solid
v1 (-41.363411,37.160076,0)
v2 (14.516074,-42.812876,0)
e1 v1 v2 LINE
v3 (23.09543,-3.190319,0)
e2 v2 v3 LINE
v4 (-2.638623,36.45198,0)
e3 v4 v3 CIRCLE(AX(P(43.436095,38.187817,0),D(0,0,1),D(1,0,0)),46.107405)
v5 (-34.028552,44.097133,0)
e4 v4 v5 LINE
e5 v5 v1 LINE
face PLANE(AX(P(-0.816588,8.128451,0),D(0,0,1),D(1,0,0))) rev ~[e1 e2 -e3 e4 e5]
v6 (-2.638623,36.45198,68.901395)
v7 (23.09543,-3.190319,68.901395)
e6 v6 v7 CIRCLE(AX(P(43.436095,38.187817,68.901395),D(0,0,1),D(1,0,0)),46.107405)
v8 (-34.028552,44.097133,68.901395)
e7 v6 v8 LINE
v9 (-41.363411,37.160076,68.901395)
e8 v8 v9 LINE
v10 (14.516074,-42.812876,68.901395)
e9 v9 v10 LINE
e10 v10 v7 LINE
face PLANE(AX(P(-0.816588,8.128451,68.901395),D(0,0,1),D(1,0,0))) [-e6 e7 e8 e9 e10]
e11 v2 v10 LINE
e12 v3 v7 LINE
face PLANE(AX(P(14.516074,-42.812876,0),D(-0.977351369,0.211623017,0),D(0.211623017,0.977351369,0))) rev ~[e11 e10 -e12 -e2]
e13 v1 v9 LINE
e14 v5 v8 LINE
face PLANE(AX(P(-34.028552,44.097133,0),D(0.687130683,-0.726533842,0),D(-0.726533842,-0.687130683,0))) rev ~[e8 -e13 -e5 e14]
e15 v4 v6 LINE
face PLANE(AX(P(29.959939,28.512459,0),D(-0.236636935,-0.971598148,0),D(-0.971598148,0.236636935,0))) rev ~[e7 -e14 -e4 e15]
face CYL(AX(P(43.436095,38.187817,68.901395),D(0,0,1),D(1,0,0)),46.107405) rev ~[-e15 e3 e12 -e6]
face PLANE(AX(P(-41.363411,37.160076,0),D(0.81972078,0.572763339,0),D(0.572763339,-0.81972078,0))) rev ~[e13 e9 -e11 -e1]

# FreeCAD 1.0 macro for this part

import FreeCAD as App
import Part
import Sketcher
from FreeCAD import Vector
Q = App.Units.Quantity


def add_polygon(sketch, points):
    """Adds a closed chain of lines whose ends are joined by coincident constraints."""
    first, n = sketch.GeometryCount, len(points)
    for a, b in zip(points, points[1:] + points[:1]):
        sketch.addGeometry(Part.LineSegment(App.Vector(*a, 0), App.Vector(*b, 0)), False)
    for i in range(n):
        sketch.addConstraint(Sketcher.Constraint("Coincident", first + i, 2, first + (i + 1) % n, 1))

doc = App.newDocument("Part")
body = doc.addObject("PartDesign::Body", "Body")

sketch1 = body.newObject("Sketcher::SketchObject", "Sketch")
sketch1.AttachmentSupport = (doc.getObject("XY_Plane"), [""])
sketch1.MapMode = "FlatFace"
add_polygon(sketch1, [(-34, 44), (-41, 37), (15, -43), (30, 29)])
sketch1.addConstraint([
    Sketcher.Constraint("Distance", 0, Q("10.095688 mm")),
    Sketcher.Constraint("Distance", 1, Q("97.561211 mm")),
    Sketcher.Constraint("Distance", 2, Q("72.978191 mm")),
    Sketcher.Constraint("Distance", 3, Q("65.859009 mm")),
    Sketcher.Constraint("DistanceX", 0, 2, -1, 1, Q("41.363411 mm")),
    Sketcher.Constraint("DistanceX", -1, 1, 2, 2, Q("29.959939 mm")),
    Sketcher.Constraint("DistanceY", -1, 1, 2, 2, Q("28.512459 mm")),
    Sketcher.Constraint("DistanceX", 3, 2, -1, 1, Q("34.028552 mm")),
])
pad1 = body.newObject("PartDesign::Pad", "Pad")
pad1.Profile = sketch1
pad1.Length = 68.901395

sketch2 = body.newObject("Sketcher::SketchObject", "Sketch001")
sketch2.AttachmentSupport = (doc.getObject("XY_Plane"), [""])
sketch2.MapMode = "FlatFace"
sketch2.AttachmentOffset = App.Placement(Vector(0, 0, 68.901395), App.Rotation())
sketch2.addGeometry(Part.Circle(Vector(43, 38, 0), Vector(0, 0, 1), 46), False)
sketch2.addConstraint([
    Sketcher.Constraint("Diameter", 0, Q("92.21481 mm")),
    Sketcher.Constraint("DistanceX", -1, 1, 0, 3, Q("43.436095 mm")),
    Sketcher.Constraint("DistanceY", -1, 1, 0, 3, Q("38.187817 mm")),
])
pocket1 = body.newObject("PartDesign::Pocket", "Pocket")
pocket1.Profile = sketch2
pocket1.Length = 88.576624

doc.recompute()
